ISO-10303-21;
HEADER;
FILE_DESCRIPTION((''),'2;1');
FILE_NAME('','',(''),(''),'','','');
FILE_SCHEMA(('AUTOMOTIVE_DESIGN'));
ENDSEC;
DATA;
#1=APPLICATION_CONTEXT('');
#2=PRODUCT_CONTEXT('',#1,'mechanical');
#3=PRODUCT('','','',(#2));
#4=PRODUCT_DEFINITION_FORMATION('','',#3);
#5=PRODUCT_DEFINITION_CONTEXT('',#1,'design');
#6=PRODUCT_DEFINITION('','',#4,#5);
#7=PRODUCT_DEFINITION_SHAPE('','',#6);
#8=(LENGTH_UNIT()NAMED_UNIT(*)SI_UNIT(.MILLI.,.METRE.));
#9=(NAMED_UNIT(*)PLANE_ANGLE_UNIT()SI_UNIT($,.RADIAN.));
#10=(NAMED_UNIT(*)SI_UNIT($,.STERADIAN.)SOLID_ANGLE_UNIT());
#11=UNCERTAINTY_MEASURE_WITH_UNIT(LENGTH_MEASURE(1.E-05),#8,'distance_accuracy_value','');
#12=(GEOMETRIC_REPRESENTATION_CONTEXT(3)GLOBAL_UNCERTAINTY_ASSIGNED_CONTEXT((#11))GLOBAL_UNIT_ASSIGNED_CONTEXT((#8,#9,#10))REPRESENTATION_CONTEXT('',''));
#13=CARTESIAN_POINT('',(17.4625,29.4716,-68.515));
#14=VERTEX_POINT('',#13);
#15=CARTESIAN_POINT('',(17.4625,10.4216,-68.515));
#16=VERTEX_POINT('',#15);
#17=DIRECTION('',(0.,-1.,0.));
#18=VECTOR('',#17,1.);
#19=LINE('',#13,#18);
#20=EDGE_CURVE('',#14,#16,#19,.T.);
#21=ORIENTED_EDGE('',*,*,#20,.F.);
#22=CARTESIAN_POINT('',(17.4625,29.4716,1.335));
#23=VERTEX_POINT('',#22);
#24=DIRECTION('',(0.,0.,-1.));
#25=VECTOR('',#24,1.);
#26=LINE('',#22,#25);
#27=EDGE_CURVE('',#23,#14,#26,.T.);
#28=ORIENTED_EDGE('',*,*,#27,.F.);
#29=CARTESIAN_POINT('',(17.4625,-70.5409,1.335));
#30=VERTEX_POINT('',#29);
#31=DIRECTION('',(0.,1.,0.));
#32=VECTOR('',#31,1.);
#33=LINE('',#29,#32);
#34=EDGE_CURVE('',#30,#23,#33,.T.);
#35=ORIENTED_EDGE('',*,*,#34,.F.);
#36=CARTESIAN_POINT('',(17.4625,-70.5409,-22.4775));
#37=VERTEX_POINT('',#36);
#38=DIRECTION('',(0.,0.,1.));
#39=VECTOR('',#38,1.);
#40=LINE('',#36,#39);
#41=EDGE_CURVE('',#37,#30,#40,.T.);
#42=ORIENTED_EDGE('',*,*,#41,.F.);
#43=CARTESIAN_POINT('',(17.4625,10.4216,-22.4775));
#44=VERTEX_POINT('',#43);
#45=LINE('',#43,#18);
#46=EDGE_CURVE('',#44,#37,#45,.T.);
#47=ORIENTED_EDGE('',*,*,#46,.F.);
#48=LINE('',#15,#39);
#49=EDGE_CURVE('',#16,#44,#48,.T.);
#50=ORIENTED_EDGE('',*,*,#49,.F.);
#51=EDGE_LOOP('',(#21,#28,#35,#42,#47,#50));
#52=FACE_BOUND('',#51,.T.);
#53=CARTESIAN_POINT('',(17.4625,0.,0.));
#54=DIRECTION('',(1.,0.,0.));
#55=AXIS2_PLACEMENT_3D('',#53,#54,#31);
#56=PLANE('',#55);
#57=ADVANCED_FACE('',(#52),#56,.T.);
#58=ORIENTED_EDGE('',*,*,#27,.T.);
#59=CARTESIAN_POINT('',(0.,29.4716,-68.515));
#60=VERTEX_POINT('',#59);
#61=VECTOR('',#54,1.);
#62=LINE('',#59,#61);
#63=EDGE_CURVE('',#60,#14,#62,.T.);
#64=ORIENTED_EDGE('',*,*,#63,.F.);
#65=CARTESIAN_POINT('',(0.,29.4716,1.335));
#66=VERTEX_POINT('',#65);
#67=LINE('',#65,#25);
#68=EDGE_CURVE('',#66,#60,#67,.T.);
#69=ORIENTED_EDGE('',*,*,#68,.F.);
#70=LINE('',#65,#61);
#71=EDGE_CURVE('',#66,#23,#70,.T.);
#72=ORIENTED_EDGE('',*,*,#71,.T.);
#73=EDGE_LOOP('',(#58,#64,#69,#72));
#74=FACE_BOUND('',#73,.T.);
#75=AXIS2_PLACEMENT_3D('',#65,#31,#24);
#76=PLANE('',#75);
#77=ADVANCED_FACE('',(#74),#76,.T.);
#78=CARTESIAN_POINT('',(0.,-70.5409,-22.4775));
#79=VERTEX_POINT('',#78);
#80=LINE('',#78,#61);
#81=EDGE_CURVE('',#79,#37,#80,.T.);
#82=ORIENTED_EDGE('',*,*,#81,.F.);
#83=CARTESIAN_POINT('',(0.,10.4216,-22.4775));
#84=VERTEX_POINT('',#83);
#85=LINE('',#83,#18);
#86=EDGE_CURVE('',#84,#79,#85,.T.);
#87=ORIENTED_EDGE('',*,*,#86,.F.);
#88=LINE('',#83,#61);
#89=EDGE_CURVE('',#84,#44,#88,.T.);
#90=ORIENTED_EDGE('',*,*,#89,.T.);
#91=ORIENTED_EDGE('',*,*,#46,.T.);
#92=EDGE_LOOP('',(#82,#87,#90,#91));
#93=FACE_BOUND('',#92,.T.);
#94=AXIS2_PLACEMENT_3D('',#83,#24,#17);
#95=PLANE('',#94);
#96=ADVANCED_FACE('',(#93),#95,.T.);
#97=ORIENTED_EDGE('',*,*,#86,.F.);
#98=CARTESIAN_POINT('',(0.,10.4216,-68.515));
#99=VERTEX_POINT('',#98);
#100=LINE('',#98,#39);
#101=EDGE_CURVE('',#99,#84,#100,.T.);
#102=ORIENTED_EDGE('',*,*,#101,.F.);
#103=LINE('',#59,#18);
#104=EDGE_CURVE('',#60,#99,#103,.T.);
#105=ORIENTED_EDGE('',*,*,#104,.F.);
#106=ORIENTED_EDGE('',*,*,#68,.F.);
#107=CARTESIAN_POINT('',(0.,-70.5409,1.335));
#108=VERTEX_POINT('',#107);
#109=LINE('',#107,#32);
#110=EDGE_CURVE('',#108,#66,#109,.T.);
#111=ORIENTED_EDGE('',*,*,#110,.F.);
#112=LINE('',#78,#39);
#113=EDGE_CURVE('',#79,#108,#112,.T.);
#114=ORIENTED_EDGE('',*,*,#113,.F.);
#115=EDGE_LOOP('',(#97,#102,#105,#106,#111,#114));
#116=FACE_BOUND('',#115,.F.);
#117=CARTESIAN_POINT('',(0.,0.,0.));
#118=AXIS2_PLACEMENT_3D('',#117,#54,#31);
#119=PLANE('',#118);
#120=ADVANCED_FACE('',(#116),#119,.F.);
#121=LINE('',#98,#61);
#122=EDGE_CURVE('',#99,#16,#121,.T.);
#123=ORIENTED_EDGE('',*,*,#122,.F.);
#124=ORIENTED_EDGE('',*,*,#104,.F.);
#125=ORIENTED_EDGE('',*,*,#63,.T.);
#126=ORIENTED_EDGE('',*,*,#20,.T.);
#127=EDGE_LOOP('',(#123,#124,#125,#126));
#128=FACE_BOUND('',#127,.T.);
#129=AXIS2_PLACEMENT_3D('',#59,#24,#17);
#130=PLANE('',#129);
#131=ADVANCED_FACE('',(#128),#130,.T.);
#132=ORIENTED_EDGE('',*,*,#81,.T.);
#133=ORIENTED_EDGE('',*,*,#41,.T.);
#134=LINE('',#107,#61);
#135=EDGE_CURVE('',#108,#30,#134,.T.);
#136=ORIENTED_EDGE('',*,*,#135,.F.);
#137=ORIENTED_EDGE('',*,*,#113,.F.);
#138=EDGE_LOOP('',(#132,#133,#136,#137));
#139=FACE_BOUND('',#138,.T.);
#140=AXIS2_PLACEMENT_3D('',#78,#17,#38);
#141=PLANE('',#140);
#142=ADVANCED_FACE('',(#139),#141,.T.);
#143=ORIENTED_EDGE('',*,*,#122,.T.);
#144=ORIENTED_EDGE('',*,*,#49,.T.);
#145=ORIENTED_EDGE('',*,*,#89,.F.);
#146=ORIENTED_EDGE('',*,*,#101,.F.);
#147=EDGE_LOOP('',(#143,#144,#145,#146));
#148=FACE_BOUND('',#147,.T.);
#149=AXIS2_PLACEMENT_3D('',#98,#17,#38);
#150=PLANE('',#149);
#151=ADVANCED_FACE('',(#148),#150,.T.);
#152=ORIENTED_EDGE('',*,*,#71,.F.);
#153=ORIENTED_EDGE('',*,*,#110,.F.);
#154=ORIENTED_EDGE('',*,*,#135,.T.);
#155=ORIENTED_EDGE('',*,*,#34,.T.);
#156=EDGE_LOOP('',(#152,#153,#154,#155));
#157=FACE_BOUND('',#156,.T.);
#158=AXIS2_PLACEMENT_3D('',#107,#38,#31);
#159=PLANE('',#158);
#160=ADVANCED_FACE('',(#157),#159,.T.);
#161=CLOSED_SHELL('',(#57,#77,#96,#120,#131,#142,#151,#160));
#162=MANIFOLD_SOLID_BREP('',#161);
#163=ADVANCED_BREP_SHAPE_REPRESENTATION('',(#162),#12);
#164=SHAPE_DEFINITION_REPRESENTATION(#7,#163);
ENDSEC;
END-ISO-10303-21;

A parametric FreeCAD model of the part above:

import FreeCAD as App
import Part
import Sketcher

V = App.Vector
Q = App.Units.Quantity


def add_polygon(sketch, points):
    """Adds a closed chain of lines whose ends are joined by coincident constraints."""
    first, n = sketch.GeometryCount, len(points)
    for a, b in zip(points, points[1:] + points[:1]):
        sketch.addGeometry(Part.LineSegment(App.Vector(*a, 0), App.Vector(*b, 0)), False)
    for i in range(n):
        sketch.addConstraint(Sketcher.Constraint("Coincident", first + i, 2, first + (i + 1) % n, 1))

doc = App.newDocument("Part")
params = doc.addObject("Spreadsheet::Sheet", "Params")
for row, (alias, value) in enumerate([
    ("sketch1_width", "0.75 in"),
    ("sketch1_height", "2.75 in"),
    ("sketch1_width2", "3.9375 in"),
    ("sketch1_height2", "0.9375 in"),
    ("pad1_length", "0.6875 in"),
], start=1):
    params.set(f"A{row}", alias)
    params.set(f"B{row}", "=" + value)
    params.setAlias(f"B{row}", alias)

body = doc.addObject("PartDesign::Body", "Body")

# Sketch on YZ plane
sketch1 = body.newObject("Sketcher::SketchObject", "Sketch")
sketch1.AttachmentSupport = (doc.getObject("YZ_Plane"), [""])
sketch1.MapMode = "FlatFace"
add_polygon(sketch1, [(29, -69), (29, 1), (-71, 1), (-71, -22), (10, -22), (10, -69)])  # lines 0-5
sketch1.addConstraint([
    Sketcher.Constraint("Vertical", 0),
    Sketcher.Constraint("Horizontal", 1),
    Sketcher.Constraint("Vertical", 2),
    Sketcher.Constraint("Horizontal", 3),
    Sketcher.Constraint("Vertical", 4),
    Sketcher.Constraint("Horizontal", 5),
    Sketcher.Constraint("DistanceX", 5, 1, 5, 2, Q("0.75 in")),
    Sketcher.Constraint("DistanceY", 0, 1, 0, 2, Q("2.75 in")),
    Sketcher.Constraint("DistanceX", 1, 2, 1, 1, Q("3.9375 in")),
    Sketcher.Constraint("DistanceY", 2, 2, 2, 1, Q("0.9375 in")),
    Sketcher.Constraint("DistanceX", -1, 1, 0, 2, Q("1.1603 in")),
    Sketcher.Constraint("DistanceY", -1, 1, 0, 2, 1.335),
])
sketch1.setExpression("Constraints[12]", "Params.sketch1_width")
sketch1.setExpression("Constraints[13]", "Params.sketch1_height")
sketch1.setExpression("Constraints[14]", "Params.sketch1_width2")
sketch1.setExpression("Constraints[15]", "Params.sketch1_height2")
pad1 = body.newObject("PartDesign::Pad", "Pad")
pad1.Profile = sketch1
pad1.setExpression("Length", "Params.pad1_length")

doc.recompute()
